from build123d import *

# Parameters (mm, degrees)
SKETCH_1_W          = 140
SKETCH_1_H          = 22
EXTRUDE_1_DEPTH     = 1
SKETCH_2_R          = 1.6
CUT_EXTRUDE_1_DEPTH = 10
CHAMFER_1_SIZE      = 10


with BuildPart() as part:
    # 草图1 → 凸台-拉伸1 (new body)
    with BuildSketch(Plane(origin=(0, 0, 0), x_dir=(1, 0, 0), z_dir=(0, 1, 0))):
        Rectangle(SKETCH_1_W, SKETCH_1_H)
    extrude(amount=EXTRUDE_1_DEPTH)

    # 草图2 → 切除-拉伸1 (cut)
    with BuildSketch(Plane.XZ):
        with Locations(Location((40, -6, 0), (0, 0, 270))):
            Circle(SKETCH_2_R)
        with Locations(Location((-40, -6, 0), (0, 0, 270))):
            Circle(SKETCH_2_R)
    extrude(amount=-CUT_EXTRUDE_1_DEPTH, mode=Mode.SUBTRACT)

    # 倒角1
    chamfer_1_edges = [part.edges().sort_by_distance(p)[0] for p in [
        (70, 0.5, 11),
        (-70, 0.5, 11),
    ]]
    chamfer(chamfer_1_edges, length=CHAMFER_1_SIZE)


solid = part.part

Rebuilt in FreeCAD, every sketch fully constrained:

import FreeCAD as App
import Part
import Sketcher

V = App.Vector
Q = App.Units.Quantity


def edges_at(feature, points):
    """Names of the edges that pass closest to the given points."""
    edges = feature.Shape.Edges
    near = lambda p: min(range(len(edges)), key=lambda i: edges[i].distToShape(Part.Vertex(*p))[0])
    return sorted({f"Edge{near(p) + 1}" for p in points})

doc = App.newDocument("Part")
body = doc.addObject("PartDesign::Body", "Body")

# Sketch on XZ plane
sketch1 = body.newObject("Sketcher::SketchObject", "Sketch")
sketch1.AttachmentSupport = (doc.getObject("XZ_Plane"), [""])
sketch1.MapMode = "FlatFace"
sketch1.addGeometry(Part.LineSegment(V(-70, -11, 0), V(-70, 11, 0)), False)
sketch1.addGeometry(Part.LineSegment(V(-70, 11, 0), V(70, 11, 0)), False)
sketch1.addGeometry(Part.LineSegment(V(70, 11, 0), V(70, -11, 0)), False)
sketch1.addGeometry(Part.LineSegment(V(70, -11, 0), V(-70, -11, 0)), False)
sketch1.addConstraint(Sketcher.Constraint("Coincident", 0, 2, 1, 1))
sketch1.addConstraint(Sketcher.Constraint("Coincident", 1, 2, 2, 1))
sketch1.addConstraint(Sketcher.Constraint("Coincident", 2, 2, 3, 1))
sketch1.addConstraint(Sketcher.Constraint("Coincident", 3, 2, 0, 1))
sketch1.addConstraint(Sketcher.Constraint("Vertical", 0))
sketch1.addConstraint(Sketcher.Constraint("Horizontal", 1))
sketch1.addConstraint(Sketcher.Constraint("Vertical", 2))
sketch1.addConstraint(Sketcher.Constraint("Horizontal", 3))
sketch1.addConstraint(Sketcher.Constraint("Symmetric", 0, 2, 2, 2, -1, 1))
sketch1.addConstraint(Sketcher.Constraint("DistanceX", 1, 1, 1, 2, Q("140 mm")))
sketch1.addConstraint(Sketcher.Constraint("DistanceY", 0, 1, 0, 2, Q("22 mm")))
pad1 = body.newObject("PartDesign::Pad", "Pad")
pad1.Profile = sketch1
pad1.Length = 1
pad1.Reversed = True

# Sketch on XZ plane
sketch2 = body.newObject("Sketcher::SketchObject", "Sketch001")
sketch2.AttachmentSupport = (doc.getObject("XZ_Plane"), [""])
sketch2.MapMode = "FlatFace"
sketch2.addGeometry(Part.Circle(V(40, -6, 0), V(0, 0, 1), 1.6), False)
sketch2.addGeometry(Part.Circle(V(-40, -6, 0), V(0, 0, 1), 1.6), False)
sketch2.addConstraint(Sketcher.Constraint("Equal", 0, 1))
sketch2.addConstraint(Sketcher.Constraint("Symmetric", 0, 3, 1, 3, -2))
sketch2.addConstraint(Sketcher.Constraint("Diameter", 0, Q("3.2 mm")))
sketch2.addConstraint(Sketcher.Constraint("DistanceX", -1, 1, 0, 3, Q("40 mm")))
sketch2.addConstraint(Sketcher.Constraint("DistanceY", 0, 3, -1, 1, Q("6 mm")))
pocket1 = body.newObject("PartDesign::Pocket", "Pocket")
pocket1.Profile = sketch2
pocket1.Length = 10
doc.recompute()

chamfer = body.newObject("PartDesign::Chamfer", "Chamfer")
chamfer.Base = (pocket1, edges_at(pocket1, [(70, 0.5, 11), (-70, 0.5, 11)]))
chamfer.Size = 10

doc.recompute()
